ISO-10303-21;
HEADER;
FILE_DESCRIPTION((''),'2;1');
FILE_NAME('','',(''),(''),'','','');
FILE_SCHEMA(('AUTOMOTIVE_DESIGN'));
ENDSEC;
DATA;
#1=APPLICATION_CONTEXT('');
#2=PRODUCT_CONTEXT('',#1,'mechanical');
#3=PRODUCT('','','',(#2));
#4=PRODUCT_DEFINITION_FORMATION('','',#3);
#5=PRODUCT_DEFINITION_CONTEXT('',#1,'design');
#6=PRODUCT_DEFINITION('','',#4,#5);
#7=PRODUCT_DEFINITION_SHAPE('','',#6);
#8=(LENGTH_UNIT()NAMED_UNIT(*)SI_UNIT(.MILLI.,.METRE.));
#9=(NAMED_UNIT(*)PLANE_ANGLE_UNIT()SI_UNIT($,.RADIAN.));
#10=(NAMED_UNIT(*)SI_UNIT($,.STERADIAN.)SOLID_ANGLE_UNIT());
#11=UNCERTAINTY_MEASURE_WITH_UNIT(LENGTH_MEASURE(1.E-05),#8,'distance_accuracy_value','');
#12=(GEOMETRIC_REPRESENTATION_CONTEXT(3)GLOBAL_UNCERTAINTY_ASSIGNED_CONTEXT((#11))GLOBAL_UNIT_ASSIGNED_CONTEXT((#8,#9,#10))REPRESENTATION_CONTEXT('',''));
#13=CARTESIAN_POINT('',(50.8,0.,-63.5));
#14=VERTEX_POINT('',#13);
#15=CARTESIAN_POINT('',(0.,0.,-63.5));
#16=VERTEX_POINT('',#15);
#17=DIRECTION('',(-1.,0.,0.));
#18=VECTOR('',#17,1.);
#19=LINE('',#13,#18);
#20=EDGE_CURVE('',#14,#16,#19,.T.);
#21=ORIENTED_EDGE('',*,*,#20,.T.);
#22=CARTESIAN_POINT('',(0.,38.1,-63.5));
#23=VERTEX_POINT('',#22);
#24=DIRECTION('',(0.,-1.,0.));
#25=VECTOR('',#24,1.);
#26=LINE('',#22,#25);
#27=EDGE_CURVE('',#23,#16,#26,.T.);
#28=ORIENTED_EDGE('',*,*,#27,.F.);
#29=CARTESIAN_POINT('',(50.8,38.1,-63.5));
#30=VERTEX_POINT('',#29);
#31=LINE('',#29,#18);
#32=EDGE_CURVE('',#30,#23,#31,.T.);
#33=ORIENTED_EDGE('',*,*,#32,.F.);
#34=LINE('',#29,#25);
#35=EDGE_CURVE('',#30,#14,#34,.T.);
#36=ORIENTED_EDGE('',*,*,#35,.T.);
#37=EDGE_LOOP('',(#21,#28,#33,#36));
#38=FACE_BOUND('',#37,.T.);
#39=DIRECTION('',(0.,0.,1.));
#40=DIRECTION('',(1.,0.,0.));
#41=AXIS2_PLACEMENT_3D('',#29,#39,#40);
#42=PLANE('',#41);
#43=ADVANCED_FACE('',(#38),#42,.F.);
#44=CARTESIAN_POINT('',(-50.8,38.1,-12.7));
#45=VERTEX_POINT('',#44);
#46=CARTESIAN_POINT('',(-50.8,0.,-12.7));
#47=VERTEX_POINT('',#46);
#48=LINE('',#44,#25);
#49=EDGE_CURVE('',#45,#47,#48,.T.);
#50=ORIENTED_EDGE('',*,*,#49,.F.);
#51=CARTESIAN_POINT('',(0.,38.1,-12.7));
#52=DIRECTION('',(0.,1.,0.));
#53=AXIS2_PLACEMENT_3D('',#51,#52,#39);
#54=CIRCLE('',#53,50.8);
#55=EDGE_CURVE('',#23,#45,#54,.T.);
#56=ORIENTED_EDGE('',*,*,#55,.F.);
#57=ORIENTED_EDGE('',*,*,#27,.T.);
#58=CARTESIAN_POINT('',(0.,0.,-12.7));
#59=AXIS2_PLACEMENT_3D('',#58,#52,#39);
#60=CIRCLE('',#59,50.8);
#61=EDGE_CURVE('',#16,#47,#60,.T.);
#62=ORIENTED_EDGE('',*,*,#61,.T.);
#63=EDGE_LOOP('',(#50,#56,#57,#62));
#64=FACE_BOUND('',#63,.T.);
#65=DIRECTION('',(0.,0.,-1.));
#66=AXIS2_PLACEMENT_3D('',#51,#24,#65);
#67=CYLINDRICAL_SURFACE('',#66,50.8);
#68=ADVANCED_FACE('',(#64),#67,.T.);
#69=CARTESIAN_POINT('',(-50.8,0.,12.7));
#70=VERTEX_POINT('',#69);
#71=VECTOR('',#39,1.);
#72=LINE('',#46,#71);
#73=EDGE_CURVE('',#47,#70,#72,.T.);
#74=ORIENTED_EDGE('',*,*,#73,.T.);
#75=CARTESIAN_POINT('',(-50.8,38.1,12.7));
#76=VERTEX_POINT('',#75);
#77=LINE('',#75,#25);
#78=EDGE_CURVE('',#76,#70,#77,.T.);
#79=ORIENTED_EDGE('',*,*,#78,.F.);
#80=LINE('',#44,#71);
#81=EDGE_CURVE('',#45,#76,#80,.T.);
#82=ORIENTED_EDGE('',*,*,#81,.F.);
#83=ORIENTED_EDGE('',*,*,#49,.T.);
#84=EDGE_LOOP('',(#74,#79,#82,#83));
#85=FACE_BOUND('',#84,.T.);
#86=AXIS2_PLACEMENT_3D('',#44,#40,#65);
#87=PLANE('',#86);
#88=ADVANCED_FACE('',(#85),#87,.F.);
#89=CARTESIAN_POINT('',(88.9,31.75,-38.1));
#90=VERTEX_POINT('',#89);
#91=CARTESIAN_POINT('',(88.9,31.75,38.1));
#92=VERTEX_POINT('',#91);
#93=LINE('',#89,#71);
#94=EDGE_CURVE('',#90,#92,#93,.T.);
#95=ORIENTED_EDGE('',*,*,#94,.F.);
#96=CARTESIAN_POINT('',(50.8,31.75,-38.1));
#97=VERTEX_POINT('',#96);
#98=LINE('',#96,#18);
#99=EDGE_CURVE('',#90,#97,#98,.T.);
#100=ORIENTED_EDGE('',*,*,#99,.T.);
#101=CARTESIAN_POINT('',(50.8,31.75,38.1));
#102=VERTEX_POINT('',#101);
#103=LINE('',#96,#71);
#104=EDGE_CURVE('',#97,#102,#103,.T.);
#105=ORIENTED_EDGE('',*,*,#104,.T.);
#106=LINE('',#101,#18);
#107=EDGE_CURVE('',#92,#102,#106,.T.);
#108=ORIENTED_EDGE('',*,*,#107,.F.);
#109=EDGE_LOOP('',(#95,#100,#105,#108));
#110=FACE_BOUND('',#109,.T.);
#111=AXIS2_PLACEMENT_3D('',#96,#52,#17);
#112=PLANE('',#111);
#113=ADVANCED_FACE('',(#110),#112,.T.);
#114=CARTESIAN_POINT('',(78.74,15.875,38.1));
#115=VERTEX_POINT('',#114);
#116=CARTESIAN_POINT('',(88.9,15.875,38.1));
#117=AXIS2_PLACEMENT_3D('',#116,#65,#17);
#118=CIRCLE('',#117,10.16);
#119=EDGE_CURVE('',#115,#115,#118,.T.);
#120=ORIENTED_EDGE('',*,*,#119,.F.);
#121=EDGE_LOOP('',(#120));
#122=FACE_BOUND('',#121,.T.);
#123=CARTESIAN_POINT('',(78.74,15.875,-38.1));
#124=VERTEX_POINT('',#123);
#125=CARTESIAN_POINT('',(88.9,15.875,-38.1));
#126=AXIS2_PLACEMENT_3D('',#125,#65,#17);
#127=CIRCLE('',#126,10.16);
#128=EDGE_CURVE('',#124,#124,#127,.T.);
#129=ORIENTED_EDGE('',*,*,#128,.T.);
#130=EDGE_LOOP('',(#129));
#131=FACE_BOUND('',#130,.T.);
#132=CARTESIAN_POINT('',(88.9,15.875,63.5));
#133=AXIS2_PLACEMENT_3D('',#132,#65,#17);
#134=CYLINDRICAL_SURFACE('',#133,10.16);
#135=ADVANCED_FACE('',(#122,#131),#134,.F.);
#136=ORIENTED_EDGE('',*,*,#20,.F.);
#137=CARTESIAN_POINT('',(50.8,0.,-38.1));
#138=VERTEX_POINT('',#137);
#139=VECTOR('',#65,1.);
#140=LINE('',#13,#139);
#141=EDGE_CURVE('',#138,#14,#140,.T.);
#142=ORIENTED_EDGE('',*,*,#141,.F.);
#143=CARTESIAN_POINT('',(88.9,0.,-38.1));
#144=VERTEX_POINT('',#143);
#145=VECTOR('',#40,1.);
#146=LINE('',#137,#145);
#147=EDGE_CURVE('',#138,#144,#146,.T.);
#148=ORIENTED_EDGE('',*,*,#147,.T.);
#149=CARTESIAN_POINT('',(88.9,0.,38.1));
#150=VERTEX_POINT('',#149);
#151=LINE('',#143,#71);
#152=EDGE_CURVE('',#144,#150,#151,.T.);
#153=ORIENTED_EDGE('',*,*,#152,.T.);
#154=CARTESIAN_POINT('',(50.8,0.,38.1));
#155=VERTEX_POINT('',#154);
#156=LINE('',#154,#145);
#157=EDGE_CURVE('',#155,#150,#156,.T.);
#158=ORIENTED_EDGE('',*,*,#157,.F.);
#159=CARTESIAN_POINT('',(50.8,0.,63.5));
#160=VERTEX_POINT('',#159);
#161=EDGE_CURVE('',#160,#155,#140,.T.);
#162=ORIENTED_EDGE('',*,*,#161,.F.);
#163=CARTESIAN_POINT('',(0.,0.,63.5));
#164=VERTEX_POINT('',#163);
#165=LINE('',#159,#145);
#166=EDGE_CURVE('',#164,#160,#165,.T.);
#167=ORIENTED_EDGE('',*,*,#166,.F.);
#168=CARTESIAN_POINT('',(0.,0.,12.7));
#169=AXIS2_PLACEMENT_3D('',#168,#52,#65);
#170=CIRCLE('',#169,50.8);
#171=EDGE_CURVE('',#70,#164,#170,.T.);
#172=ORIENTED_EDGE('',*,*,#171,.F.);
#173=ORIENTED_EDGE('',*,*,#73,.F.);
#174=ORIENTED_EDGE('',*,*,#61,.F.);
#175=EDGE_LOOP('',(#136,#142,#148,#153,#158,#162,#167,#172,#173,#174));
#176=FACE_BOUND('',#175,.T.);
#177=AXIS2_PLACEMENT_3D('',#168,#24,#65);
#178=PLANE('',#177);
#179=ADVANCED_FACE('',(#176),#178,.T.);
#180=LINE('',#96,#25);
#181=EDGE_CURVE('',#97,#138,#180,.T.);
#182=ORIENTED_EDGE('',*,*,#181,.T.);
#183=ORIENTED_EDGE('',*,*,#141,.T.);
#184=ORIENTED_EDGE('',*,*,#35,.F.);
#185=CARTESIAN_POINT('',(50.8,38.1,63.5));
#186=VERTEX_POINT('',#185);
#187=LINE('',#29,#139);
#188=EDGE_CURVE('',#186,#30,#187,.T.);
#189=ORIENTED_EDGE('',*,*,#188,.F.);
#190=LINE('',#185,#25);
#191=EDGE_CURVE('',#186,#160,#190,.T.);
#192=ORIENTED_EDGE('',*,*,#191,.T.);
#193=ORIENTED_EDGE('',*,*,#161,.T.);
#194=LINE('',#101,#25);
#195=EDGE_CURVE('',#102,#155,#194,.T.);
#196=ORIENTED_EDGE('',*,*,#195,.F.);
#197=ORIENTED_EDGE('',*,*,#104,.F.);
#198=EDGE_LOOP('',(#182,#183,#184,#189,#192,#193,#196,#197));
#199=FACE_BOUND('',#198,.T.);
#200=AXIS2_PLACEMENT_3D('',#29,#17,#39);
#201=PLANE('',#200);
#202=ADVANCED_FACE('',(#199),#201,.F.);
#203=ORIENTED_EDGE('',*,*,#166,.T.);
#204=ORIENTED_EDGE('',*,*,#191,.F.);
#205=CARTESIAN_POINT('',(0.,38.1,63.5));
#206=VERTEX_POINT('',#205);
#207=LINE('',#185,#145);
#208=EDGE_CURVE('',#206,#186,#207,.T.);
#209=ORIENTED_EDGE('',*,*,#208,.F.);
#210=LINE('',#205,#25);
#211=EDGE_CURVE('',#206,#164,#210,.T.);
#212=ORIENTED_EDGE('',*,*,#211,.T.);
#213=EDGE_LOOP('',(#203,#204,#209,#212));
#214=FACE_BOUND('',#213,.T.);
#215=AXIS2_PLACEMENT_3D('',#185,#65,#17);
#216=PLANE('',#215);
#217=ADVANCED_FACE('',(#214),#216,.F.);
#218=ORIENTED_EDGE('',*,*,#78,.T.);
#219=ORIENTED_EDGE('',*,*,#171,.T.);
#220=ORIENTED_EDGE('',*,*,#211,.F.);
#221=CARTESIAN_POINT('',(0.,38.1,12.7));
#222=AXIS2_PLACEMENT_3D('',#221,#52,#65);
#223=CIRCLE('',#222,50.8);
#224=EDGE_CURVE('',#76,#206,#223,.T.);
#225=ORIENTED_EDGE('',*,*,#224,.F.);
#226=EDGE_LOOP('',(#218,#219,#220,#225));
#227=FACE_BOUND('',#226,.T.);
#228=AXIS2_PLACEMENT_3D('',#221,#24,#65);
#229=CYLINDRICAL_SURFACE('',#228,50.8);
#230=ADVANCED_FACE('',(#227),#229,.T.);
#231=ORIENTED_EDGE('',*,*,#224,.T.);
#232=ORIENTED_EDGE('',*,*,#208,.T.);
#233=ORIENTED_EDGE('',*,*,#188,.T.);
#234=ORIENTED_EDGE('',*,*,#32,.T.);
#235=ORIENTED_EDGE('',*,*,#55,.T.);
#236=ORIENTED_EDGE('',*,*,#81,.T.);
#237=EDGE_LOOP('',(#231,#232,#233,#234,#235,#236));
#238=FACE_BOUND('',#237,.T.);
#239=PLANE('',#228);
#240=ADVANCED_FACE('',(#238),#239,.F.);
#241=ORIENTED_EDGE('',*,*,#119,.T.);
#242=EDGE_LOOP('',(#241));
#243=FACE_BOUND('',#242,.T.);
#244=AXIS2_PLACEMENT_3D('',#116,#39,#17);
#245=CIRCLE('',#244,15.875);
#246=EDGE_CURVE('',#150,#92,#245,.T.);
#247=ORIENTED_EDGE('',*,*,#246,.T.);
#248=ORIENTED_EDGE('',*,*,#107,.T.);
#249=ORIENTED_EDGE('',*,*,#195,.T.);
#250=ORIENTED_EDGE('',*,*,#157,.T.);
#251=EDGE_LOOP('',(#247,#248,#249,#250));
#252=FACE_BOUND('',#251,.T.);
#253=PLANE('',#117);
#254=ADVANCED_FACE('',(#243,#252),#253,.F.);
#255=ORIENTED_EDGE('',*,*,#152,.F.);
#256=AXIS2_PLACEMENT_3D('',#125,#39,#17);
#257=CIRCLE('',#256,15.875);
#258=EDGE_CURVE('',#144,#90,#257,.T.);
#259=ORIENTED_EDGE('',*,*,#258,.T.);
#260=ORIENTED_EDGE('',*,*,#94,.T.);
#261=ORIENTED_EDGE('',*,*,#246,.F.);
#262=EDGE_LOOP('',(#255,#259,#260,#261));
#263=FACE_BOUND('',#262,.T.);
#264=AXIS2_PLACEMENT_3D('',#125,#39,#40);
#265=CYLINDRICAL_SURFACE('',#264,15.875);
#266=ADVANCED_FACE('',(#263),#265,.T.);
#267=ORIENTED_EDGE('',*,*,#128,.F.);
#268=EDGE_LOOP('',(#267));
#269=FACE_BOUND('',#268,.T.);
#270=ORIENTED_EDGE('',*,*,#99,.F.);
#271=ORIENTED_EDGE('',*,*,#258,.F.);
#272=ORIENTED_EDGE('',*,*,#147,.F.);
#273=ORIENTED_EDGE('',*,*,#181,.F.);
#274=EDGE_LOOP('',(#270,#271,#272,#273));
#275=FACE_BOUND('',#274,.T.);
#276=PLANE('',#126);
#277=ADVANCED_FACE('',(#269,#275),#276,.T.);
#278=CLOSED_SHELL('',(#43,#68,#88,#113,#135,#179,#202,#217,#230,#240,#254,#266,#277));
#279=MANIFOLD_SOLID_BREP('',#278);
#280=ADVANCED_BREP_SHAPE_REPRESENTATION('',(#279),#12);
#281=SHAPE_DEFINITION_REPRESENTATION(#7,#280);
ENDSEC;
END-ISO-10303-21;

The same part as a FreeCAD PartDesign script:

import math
import FreeCAD as App
import Part
import Sketcher
from FreeCAD import Vector
Q = App.Units.Quantity

doc = App.newDocument("Part")
body = doc.addObject("PartDesign::Body", "Body")

# Sketch on XZ plane
sketch1 = body.newObject("Sketcher::SketchObject", "Sketch")
sketch1.AttachmentSupport = (doc.getObject("XZ_Plane"), [""])
sketch1.MapMode = "FlatFace"
sketch1.addGeometry(Part.LineSegment(Vector(50.8, -63.5, 0), Vector(0, -63.5, 0)), False)
sketch1.addGeometry(Part.ArcOfCircle(Part.Circle(Vector(0, -12.7, 0), Vector(0, 0, 1), 50.8), math.radians(-180), math.radians(-90)), False)
sketch1.addGeometry(Part.LineSegment(Vector(-50.8, -12.7, 0), Vector(-50.8, 12.7, 0)), False)
sketch1.addGeometry(Part.ArcOfCircle(Part.Circle(Vector(0, 12.7, 0), Vector(0, 0, 1), 50.8), math.radians(90), math.radians(180)), False)
sketch1.addGeometry(Part.LineSegment(Vector(0, 63.5, 0), Vector(50.8, 63.5, 0)), False)
sketch1.addGeometry(Part.LineSegment(Vector(50.8, 63.5, 0), Vector(50.8, -63.5, 0)), False)
sketch1.addConstraint(Sketcher.Constraint("Tangent", 0, 2, 1, 2))
sketch1.addConstraint(Sketcher.Constraint("Tangent", 1, 1, 2, 1))
sketch1.addConstraint(Sketcher.Constraint("Tangent", 2, 2, 3, 2))
sketch1.addConstraint(Sketcher.Constraint("Tangent", 3, 1, 4, 1))
sketch1.addConstraint(Sketcher.Constraint("Coincident", 4, 2, 5, 1))
sketch1.addConstraint(Sketcher.Constraint("Coincident", 5, 2, 0, 1))
sketch1.addConstraint(Sketcher.Constraint("Horizontal", 0))
sketch1.addConstraint(Sketcher.Constraint("Vertical", 2))
sketch1.addConstraint(Sketcher.Constraint("Horizontal", 4))
sketch1.addConstraint(Sketcher.Constraint("Vertical", 5))
sketch1.addConstraint(Sketcher.Constraint("Equal", 1, 3))
sketch1.addConstraint(Sketcher.Constraint("Symmetric", 1, 3, 3, 3, -1, 1))
sketch1.addConstraint(Sketcher.Constraint("Radius", 1, Q("2 in")))
sketch1.addConstraint(Sketcher.Constraint("DistanceX", 0, 2, 0, 1, Q("2 in")))
sketch1.addConstraint(Sketcher.Constraint("DistanceY", 2, 1, 2, 2, Q("1 in")))
pad1 = body.newObject("PartDesign::Pad", "Pad")
pad1.Profile = sketch1
pad1.Length = Q("1.5 in")
pad1.Reversed = True

# Sketch on XY plane
sketch2 = body.newObject("Sketcher::SketchObject", "Sketch001")
sketch2.AttachmentSupport = (doc.getObject("XY_Plane"), [""])
sketch2.MapMode = "FlatFace"
sketch2.addGeometry(Part.LineSegment(Vector(88.9, 31.75, 0), Vector(50.8, 31.75, 0)), False)
sketch2.addGeometry(Part.LineSegment(Vector(50.8, 31.75, 0), Vector(50.8, 0, 0)), False)
sketch2.addGeometry(Part.LineSegment(Vector(50.8, 0, 0), Vector(88.9, 0, 0)), False)
sketch2.addGeometry(Part.ArcOfCircle(Part.Circle(Vector(88.9, 15.875, 0), Vector(0, 0, 1), 15.875), math.radians(-90), math.radians(90)), False)
sketch2.addConstraint(Sketcher.Constraint("Coincident", 0, 2, 1, 1))
sketch2.addConstraint(Sketcher.Constraint("Coincident", 1, 2, 2, 1))
sketch2.addConstraint(Sketcher.Constraint("Tangent", 2, 2, 3, 1))
sketch2.addConstraint(Sketcher.Constraint("Tangent", 3, 2, 0, 1))
sketch2.addConstraint(Sketcher.Constraint("Horizontal", 0))
sketch2.addConstraint(Sketcher.Constraint("Vertical", 1))
sketch2.addConstraint(Sketcher.Constraint("Horizontal", 2))
sketch2.addConstraint(Sketcher.Constraint("PointOnObject", 1, 2, -1))
sketch2.addConstraint(Sketcher.Constraint("DistanceX", 0, 2, 0, 1, Q("1.5 in")))
sketch2.addConstraint(Sketcher.Constraint("DistanceX", -1, 1, 0, 2, Q("2 in")))
sketch2.addConstraint(Sketcher.Constraint("Radius", 3, Q("0.625 in")))
pad2 = body.newObject("PartDesign::Pad", "Pad001")
pad2.Profile = sketch2
pad2.Type = "TwoLengths"
pad2.Length = Q("1.5 in")
pad2.Length2 = Q("1.5 in")

# Sketch on XY plane
sketch3 = body.newObject("Sketcher::SketchObject", "Sketch002")
sketch3.AttachmentSupport = (doc.getObject("XY_Plane"), [""])
sketch3.MapMode = "FlatFace"
sketch3.AttachmentOffset = App.Placement(Vector(0, 0, -1.5 * 25.4), App.Rotation())
sketch3.addGeometry(Part.Circle(Vector(88.9, 15.875, 0), Vector(0, 0, 1), 10.16), False)
sketch3.addConstraint(Sketcher.Constraint("Diameter", 0, Q("0.8 in")))
sketch3.addConstraint(Sketcher.Constraint("DistanceX", -1, 1, 0, 3, Q("3.5 in")))
sketch3.addConstraint(Sketcher.Constraint("DistanceY", -1, 1, 0, 3, Q("0.625 in")))
pocket1 = body.newObject("PartDesign::Pocket", "Pocket")
pocket1.Profile = sketch3
pocket1.Type = "ThroughAll"
pocket1.Reversed = True

doc.recompute()
